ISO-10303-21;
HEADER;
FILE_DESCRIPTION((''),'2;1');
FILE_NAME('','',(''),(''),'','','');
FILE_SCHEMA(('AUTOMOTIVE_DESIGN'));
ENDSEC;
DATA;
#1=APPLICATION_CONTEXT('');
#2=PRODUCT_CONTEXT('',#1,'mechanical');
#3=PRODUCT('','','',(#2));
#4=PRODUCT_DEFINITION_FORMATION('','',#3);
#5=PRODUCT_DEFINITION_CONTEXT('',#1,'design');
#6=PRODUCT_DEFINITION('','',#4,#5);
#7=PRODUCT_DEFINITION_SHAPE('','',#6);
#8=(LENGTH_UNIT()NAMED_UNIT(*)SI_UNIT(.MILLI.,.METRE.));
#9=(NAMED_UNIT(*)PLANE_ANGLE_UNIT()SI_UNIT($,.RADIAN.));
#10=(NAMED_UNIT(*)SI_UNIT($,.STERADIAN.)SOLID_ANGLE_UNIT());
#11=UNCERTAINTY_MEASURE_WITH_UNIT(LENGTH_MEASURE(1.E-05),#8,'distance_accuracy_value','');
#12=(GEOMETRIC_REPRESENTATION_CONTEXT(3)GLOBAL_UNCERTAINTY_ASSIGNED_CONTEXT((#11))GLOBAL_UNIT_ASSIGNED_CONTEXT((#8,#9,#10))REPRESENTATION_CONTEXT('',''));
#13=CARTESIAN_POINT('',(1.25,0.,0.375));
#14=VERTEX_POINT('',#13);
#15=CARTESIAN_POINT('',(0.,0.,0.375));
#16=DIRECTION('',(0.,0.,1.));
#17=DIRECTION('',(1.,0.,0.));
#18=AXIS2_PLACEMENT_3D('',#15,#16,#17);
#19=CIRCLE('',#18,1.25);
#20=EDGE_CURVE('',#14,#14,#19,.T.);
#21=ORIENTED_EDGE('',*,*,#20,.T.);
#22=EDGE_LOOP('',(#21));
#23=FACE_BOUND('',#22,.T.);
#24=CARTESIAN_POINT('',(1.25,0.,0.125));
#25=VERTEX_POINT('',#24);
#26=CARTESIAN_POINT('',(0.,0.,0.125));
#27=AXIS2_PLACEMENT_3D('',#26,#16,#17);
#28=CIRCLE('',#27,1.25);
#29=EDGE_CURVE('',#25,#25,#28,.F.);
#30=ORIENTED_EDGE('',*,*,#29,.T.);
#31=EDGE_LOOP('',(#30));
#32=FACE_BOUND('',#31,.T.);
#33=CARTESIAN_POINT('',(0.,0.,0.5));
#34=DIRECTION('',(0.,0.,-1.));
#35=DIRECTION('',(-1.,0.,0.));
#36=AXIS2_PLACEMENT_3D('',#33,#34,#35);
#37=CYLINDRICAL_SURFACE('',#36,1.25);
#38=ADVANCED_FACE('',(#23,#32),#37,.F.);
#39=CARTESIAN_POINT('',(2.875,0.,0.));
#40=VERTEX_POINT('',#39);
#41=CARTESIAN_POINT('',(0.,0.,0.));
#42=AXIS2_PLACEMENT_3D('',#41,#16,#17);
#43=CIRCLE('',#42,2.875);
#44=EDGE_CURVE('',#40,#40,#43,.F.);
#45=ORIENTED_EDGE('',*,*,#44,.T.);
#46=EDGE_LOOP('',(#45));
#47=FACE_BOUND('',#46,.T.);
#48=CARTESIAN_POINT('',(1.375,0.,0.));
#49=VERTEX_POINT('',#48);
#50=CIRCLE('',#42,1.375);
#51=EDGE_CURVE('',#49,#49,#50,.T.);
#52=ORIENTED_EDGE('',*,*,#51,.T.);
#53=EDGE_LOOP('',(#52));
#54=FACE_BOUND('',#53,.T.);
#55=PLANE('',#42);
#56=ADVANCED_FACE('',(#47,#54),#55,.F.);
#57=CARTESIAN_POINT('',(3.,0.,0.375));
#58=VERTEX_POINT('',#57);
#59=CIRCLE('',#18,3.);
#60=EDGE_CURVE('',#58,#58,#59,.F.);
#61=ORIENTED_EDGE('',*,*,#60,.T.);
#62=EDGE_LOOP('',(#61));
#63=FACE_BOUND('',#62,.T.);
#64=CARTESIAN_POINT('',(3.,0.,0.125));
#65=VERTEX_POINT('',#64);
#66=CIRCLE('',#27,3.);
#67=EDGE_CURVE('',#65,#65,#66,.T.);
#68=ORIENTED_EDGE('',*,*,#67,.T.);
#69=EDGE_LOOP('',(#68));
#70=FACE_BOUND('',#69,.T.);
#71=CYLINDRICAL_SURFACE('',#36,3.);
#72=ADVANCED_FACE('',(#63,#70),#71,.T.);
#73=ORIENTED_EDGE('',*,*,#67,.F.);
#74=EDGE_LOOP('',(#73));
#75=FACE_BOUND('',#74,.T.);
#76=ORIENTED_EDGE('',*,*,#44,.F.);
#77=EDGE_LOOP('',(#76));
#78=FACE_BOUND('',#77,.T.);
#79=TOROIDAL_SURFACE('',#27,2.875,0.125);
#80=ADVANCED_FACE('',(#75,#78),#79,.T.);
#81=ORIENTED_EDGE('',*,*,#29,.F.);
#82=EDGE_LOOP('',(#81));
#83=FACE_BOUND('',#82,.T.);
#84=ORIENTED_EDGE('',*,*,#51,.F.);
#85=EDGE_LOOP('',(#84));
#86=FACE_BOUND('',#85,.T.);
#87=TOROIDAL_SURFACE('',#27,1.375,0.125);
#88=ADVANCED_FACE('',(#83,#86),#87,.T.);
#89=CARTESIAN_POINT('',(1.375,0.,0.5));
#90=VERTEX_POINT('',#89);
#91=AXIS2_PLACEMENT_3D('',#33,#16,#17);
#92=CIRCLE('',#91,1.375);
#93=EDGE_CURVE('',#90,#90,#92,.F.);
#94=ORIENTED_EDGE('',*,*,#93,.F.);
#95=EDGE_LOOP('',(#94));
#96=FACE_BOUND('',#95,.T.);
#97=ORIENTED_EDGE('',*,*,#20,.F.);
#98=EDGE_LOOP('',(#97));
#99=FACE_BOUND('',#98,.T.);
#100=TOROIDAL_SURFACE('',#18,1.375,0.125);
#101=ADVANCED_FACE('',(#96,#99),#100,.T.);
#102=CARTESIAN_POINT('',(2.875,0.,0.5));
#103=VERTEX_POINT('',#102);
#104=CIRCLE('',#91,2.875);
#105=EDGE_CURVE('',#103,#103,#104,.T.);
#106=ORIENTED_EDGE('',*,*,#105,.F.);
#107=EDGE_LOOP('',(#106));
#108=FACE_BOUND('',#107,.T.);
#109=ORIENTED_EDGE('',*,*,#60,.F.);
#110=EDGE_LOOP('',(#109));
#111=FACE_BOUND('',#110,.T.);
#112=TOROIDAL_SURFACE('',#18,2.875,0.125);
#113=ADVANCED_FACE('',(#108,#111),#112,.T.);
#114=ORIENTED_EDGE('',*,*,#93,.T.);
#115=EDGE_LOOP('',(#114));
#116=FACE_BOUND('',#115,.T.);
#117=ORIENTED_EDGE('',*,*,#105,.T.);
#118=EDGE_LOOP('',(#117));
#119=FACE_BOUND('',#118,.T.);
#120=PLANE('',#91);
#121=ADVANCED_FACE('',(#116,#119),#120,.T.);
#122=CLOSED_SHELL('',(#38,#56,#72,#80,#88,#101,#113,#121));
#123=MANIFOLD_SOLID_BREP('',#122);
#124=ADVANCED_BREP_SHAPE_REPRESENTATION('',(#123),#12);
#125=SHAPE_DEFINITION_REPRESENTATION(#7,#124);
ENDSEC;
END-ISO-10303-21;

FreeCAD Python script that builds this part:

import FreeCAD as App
import Part
import Sketcher
from FreeCAD import Vector
Q = App.Units.Quantity


def edges_at(feature, points):
    """Names of the edges that pass closest to the given points."""
    edges = feature.Shape.Edges
    near = lambda p: min(range(len(edges)), key=lambda i: edges[i].distToShape(Part.Vertex(*p))[0])
    return sorted({f"Edge{near(p) + 1}" for p in points})

doc = App.newDocument("Part")
body = doc.addObject("PartDesign::Body", "Body")

sketch1 = body.newObject("Sketcher::SketchObject", "Sketch")
sketch1.AttachmentSupport = (doc.getObject("XY_Plane"), [""])
sketch1.MapMode = "FlatFace"
sketch1.addGeometry([
    Part.Circle(Vector(0, 0, 0), Vector(0, 0, 1), 3),
    Part.Circle(Vector(0, 0, 0), Vector(0, 0, 1), 1.2),
], False)
sketch1.addConstraint([
    Sketcher.Constraint("Coincident", 0, 3, -1, 1),
    Sketcher.Constraint("Coincident", 1, 3, -1, 1),
    Sketcher.Constraint("Diameter", 0, Q("6 mm")),
    Sketcher.Constraint("Diameter", 1, Q("2.5 mm")),
])
pad1 = body.newObject("PartDesign::Pad", "Pad")
pad1.Profile = sketch1
pad1.Length = 0.5
doc.recompute()

fillet = body.newObject("PartDesign::Fillet", "Fillet")
fillet.Base = (pad1, edges_at(pad1, [
    (-3, 0, 0),
    (-3, 0, 0.5),
    (-1.25, 0, 0),
    (-1.25, 0, 0.5),
]))
fillet.Radius = 0.125

doc.recompute()
